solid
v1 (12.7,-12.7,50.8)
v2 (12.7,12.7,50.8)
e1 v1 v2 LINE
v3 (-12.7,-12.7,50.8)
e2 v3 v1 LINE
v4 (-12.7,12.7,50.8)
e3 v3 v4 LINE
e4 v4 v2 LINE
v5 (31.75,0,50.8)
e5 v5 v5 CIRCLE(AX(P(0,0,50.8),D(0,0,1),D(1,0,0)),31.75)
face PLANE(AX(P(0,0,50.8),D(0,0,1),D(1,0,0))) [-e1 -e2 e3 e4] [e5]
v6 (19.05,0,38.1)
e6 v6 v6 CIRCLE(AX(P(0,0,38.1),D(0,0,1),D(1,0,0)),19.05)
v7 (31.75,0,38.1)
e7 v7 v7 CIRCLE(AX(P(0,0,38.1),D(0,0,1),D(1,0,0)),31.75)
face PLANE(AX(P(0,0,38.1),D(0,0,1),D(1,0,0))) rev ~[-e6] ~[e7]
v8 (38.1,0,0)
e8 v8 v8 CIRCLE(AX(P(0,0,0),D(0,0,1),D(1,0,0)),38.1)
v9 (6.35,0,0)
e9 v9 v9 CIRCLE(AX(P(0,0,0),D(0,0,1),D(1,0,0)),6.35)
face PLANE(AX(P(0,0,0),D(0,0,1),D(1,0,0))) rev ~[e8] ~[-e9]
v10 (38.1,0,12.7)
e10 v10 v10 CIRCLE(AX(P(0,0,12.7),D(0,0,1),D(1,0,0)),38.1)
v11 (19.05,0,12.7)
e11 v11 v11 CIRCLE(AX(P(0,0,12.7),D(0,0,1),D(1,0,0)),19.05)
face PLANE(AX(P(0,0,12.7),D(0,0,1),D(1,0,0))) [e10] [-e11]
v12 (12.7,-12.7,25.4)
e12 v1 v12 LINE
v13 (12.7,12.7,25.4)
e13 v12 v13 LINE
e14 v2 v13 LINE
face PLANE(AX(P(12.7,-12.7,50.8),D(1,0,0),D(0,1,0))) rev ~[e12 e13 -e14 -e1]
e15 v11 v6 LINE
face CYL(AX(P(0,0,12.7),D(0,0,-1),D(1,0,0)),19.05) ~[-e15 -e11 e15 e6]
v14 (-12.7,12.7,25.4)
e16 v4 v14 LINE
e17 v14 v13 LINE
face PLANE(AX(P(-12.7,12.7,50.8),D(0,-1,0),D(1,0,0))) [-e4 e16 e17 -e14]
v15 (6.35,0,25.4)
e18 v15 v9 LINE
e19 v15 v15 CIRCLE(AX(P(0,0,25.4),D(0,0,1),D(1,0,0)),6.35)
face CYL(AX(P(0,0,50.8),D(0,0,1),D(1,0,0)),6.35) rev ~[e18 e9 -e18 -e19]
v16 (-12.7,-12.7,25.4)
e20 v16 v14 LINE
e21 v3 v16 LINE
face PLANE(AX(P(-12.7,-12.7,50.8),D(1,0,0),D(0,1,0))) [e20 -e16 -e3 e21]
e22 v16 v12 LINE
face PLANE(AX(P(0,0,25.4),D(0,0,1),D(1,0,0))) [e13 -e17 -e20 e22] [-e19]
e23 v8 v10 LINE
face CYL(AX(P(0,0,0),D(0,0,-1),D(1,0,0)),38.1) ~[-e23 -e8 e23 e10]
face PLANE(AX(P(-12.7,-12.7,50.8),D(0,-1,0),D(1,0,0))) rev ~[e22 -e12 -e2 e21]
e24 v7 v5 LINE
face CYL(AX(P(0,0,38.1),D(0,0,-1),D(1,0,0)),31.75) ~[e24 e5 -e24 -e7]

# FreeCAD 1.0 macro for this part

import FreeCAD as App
import Part
import Sketcher
from FreeCAD import Vector
Q = App.Units.Quantity


def add_polygon(sketch, points):
    """Adds a closed chain of lines whose ends are joined by coincident constraints."""
    first, n = sketch.GeometryCount, len(points)
    for a, b in zip(points, points[1:] + points[:1]):
        sketch.addGeometry(Part.LineSegment(App.Vector(*a, 0), App.Vector(*b, 0)), False)
    for i in range(n):
        sketch.addConstraint(Sketcher.Constraint("Coincident", first + i, 2, first + (i + 1) % n, 1))

doc = App.newDocument("Part")
body = doc.addObject("PartDesign::Body", "Body")

# Sketch on XY plane
sketch1 = body.newObject("Sketcher::SketchObject", "Sketch")
sketch1.AttachmentSupport = (doc.getObject("XY_Plane"), [""])
sketch1.MapMode = "FlatFace"
sketch1.addGeometry(Part.Circle(Vector(0, 0, 0), Vector(0, 0, 1), 38), False)
sketch1.addConstraint([
    Sketcher.Constraint("Coincident", 0, 3, -1, 1),
    Sketcher.Constraint("Diameter", 0, Q("3 in")),
])
pad1 = body.newObject("PartDesign::Pad", "Pad")
pad1.Profile = sketch1
pad1.Length = Q("0.5 in")

# Sketch on XY plane
sketch2 = body.newObject("Sketcher::SketchObject", "Sketch001")
sketch2.AttachmentSupport = (doc.getObject("XY_Plane"), [""])
sketch2.MapMode = "FlatFace"
sketch2.AttachmentOffset = App.Placement(Vector(0, 0, 0.5 * 25.4), App.Rotation())
sketch2.addGeometry(Part.Circle(Vector(0, 0, 0), Vector(0, 0, 1), 19), False)
sketch2.addConstraint([
    Sketcher.Constraint("Coincident", 0, 3, -1, 1),
    Sketcher.Constraint("Diameter", 0, Q("1.5 in")),
])
pad2 = body.newObject("PartDesign::Pad", "Pad001")
pad2.Profile = sketch2
pad2.Length = Q("1 in")

# Sketch on XY plane
sketch3 = body.newObject("Sketcher::SketchObject", "Sketch002")
sketch3.AttachmentSupport = (doc.getObject("XY_Plane"), [""])
sketch3.MapMode = "FlatFace"
sketch3.AttachmentOffset = App.Placement(Vector(0, 0, 1.5 * 25.4), App.Rotation())
sketch3.addGeometry(Part.Circle(Vector(0, 0, 0), Vector(0, 0, 1), 32), False)
sketch3.addConstraint([
    Sketcher.Constraint("Coincident", 0, 3, -1, 1),
    Sketcher.Constraint("Diameter", 0, Q("2.5 in")),
])
pad3 = body.newObject("PartDesign::Pad", "Pad002")
pad3.Profile = sketch3
pad3.Length = Q("0.5 in")

# Sketch on XY plane
sketch4 = body.newObject("Sketcher::SketchObject", "Sketch003")
sketch4.AttachmentSupport = (doc.getObject("XY_Plane"), [""])
sketch4.MapMode = "FlatFace"
sketch4.AttachmentOffset = App.Placement(Vector(0, 0, 2 * 25.4), App.Rotation())
add_polygon(sketch4, [(-13, 13), (-13, -13), (13, -13), (13, 13)])  # lines 0-3
sketch4.addConstraint([
    Sketcher.Constraint("Vertical", 0),
    Sketcher.Constraint("Horizontal", 1),
    Sketcher.Constraint("Vertical", 2),
    Sketcher.Constraint("Horizontal", 3),
    Sketcher.Constraint("Symmetric", 0, 2, 2, 2, -1, 1),
    Sketcher.Constraint("Equal", 3, 0),
    Sketcher.Constraint("DistanceX", 1, 1, 1, 2, Q("1 in")),
])
pocket1 = body.newObject("PartDesign::Pocket", "Pocket")
pocket1.Profile = sketch4
pocket1.Length = Q("1 in")

# Sketch on XY plane
sketch5 = body.newObject("Sketcher::SketchObject", "Sketch004")
sketch5.AttachmentSupport = (doc.getObject("XY_Plane"), [""])
sketch5.MapMode = "FlatFace"
sketch5.AttachmentOffset = App.Placement(Vector(0, 0, 2 * 25.4), App.Rotation())
sketch5.addGeometry(Part.Circle(Vector(0, 0, 0), Vector(0, 0, 1), 6), False)
sketch5.addConstraint([
    Sketcher.Constraint("Coincident", 0, 3, -1, 1),
    Sketcher.Constraint("Diameter", 0, Q("0.5 in")),
])
pocket2 = body.newObject("PartDesign::Pocket", "Pocket001")
pocket2.Profile = sketch5
pocket2.Type = "ThroughAll"

doc.recompute()
